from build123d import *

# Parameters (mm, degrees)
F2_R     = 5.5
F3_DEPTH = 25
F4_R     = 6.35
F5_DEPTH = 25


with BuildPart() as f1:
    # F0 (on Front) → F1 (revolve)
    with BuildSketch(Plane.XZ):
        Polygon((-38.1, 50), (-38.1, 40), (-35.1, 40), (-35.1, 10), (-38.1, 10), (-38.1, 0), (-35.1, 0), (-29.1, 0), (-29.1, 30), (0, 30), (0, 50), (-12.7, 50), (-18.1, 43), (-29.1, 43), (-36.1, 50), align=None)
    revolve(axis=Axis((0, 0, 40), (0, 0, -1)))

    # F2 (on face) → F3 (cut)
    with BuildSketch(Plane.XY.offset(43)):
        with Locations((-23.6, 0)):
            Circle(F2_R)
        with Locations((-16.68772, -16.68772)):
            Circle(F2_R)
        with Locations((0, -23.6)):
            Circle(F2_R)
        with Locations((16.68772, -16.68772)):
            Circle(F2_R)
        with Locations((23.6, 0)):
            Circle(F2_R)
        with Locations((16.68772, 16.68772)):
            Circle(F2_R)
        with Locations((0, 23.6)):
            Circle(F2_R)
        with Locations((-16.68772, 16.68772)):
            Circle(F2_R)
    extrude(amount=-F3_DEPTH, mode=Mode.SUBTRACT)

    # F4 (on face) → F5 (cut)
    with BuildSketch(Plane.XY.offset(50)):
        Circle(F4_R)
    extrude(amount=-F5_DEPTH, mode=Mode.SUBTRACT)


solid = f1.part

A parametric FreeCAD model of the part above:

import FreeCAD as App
import Part
import Sketcher
Q = App.Units.Quantity

doc = App.newDocument("Part")
body = doc.addObject("PartDesign::Body", "Body")

# Sketch on XZ plane
sketch1 = doc.addObject("Sketcher::SketchObject", "Sketch")
body.addObject(sketch1)
sketch1.AttachmentSupport = (doc.XZ_Plane, [""])
sketch1.MapMode = "FlatFace"
sketch1.addGeometry([
    Part.LineSegment(App.Vector(-38.1, 50, 0), App.Vector(-38.1, 40, 0)),  # 0
    Part.LineSegment(App.Vector(-38.1, 40, 0), App.Vector(-35.1, 40, 0)),  # 1
    Part.LineSegment(App.Vector(-35.1, 40, 0), App.Vector(-35.1, 10, 0)),  # 2
    Part.LineSegment(App.Vector(-35.1, 10, 0), App.Vector(-38.1, 10, 0)),  # 3
    Part.LineSegment(App.Vector(-38.1, 10, 0), App.Vector(-38.1, 0, 0)),  # 4
    Part.LineSegment(App.Vector(-38.1, 0, 0), App.Vector(-29.1, 0, 0)),  # 5
    Part.LineSegment(App.Vector(-29.1, 0, 0), App.Vector(-29.1, 30, 0)),  # 6
    Part.LineSegment(App.Vector(-29.1, 30, 0), App.Vector(0, 30, 0)),  # 7
    Part.LineSegment(App.Vector(0, 30, 0), App.Vector(0, 50, 0)),  # 8
    Part.LineSegment(App.Vector(0, 50, 0), App.Vector(-12.7, 50, 0)),  # 9
    Part.LineSegment(App.Vector(-12.7, 50, 0), App.Vector(-18.1, 43, 0)),  # 10
    Part.LineSegment(App.Vector(-18.1, 43, 0), App.Vector(-29.1, 43, 0)),  # 11
    Part.LineSegment(App.Vector(-29.1, 43, 0), App.Vector(-36.1, 50, 0)),  # 12
    Part.LineSegment(App.Vector(-36.1, 50, 0), App.Vector(-38.1, 50, 0)),  # 13
], False)
sketch1.addConstraint([
    Sketcher.Constraint("Coincident", 0, 2, 1, 1),
    Sketcher.Constraint("Coincident", 1, 2, 2, 1),
    Sketcher.Constraint("Coincident", 2, 2, 3, 1),
    Sketcher.Constraint("Coincident", 3, 2, 4, 1),
    Sketcher.Constraint("Coincident", 4, 2, 5, 1),
    Sketcher.Constraint("Coincident", 5, 2, 6, 1),
    Sketcher.Constraint("Coincident", 6, 2, 7, 1),
    Sketcher.Constraint("Coincident", 7, 2, 8, 1),
    Sketcher.Constraint("Coincident", 8, 2, 9, 1),
    Sketcher.Constraint("Coincident", 9, 2, 10, 1),
    Sketcher.Constraint("Coincident", 10, 2, 11, 1),
    Sketcher.Constraint("Coincident", 11, 2, 12, 1),
    Sketcher.Constraint("Coincident", 12, 2, 13, 1),
    Sketcher.Constraint("Coincident", 13, 2, 0, 1),
    Sketcher.Constraint("Vertical", 0),
    Sketcher.Constraint("Horizontal", 1),
    Sketcher.Constraint("Vertical", 2),
    Sketcher.Constraint("Horizontal", 3),
    Sketcher.Constraint("Vertical", 4),
    Sketcher.Constraint("Horizontal", 5),
    Sketcher.Constraint("Vertical", 6),
    Sketcher.Constraint("Horizontal", 7),
    Sketcher.Constraint("Vertical", 8),
    Sketcher.Constraint("Horizontal", 9),
    Sketcher.Constraint("Horizontal", 11),
    Sketcher.Constraint("Horizontal", 13),
    Sketcher.Constraint("PointOnObject", 4, 2, -1),
    Sketcher.Constraint("PointOnObject", 7, 2, -2),
    Sketcher.Constraint("Horizontal", 9, 2, 12, 2),
    Sketcher.Constraint("Vertical", 0, 2, 3, 2),
    Sketcher.Constraint("Vertical", 6, 2, 11, 2),
    Sketcher.Constraint("Equal", 0, 4),
    Sketcher.Constraint("Equal", 2, 6),
    Sketcher.Constraint("DistanceX", 1, 1, 1, 2, Q("3 mm")),
    Sketcher.Constraint("DistanceX", 5, 1, 5, 2, Q("9 mm")),
    Sketcher.Constraint("DistanceX", 11, 2, 11, 1, Q("11 mm")),
    Sketcher.Constraint("DistanceX", 13, 2, 13, 1, Q("2 mm")),
    Sketcher.Constraint("DistanceY", 0, 2, 0, 1, Q("10 mm")),
    Sketcher.Constraint("DistanceY", 2, 2, 2, 1, Q("30 mm")),
    Sketcher.Constraint("Angle", 12, Q("135 deg")),
    Sketcher.Constraint("DistanceX", 7, 1, 7, 2, Q("29.1 mm")),
    Sketcher.Constraint("DistanceX", 9, 2, 9, 1, Q("12.7 mm")),
])
revolution = doc.addObject("PartDesign::Revolution", "Revolution")
body.addObject(revolution)
revolution.Profile = sketch1
revolution.ReferenceAxis = (sketch1, ["V_Axis"])
revolution.Angle = 360

# Sketch on XY plane
sketch2 = doc.addObject("Sketcher::SketchObject", "Sketch001")
body.addObject(sketch2)
sketch2.AttachmentSupport = (doc.XY_Plane, [""])
sketch2.MapMode = "FlatFace"
sketch2.AttachmentOffset = App.Placement(App.Vector(0, 0, 43), App.Rotation())
sketch2.addGeometry([
    Part.Circle(App.Vector(-24, 0, 0), App.Vector(0, 0, 1), 6),  # 0
    Part.Circle(App.Vector(-17, -17, 0), App.Vector(0, 0, 1), 6),  # 1
    Part.Circle(App.Vector(0, -24, 0), App.Vector(0, 0, 1), 6),  # 2
    Part.Circle(App.Vector(17, -17, 0), App.Vector(0, 0, 1), 6),  # 3
    Part.Circle(App.Vector(24, 0, 0), App.Vector(0, 0, 1), 6),  # 4
    Part.Circle(App.Vector(17, 17, 0), App.Vector(0, 0, 1), 6),  # 5
    Part.Circle(App.Vector(0, 24, 0), App.Vector(0, 0, 1), 6),  # 6
    Part.Circle(App.Vector(-17, 17, 0), App.Vector(0, 0, 1), 6),  # 7
], False)
sketch2.addConstraint([
    Sketcher.Constraint("Equal", 0, 1),
    Sketcher.Constraint("Equal", 1, 2),
    Sketcher.Constraint("Equal", 2, 3),
    Sketcher.Constraint("Equal", 3, 4),
    Sketcher.Constraint("Equal", 4, 5),
    Sketcher.Constraint("Equal", 5, 6),
    Sketcher.Constraint("Equal", 6, 7),
    Sketcher.Constraint("Symmetric", 0, 3, 4, 3, -1, 1),
    Sketcher.Constraint("Symmetric", 1, 3, 5, 3, -1, 1),
    Sketcher.Constraint("Symmetric", 2, 3, 6, 3, -1, 1),
    Sketcher.Constraint("Symmetric", 3, 3, 7, 3, -1, 1),
    Sketcher.Constraint("Symmetric", 1, 3, 3, 3, -2),
    Sketcher.Constraint("PointOnObject", 0, 3, -1),
    Sketcher.Constraint("PointOnObject", 2, 3, -2),
    Sketcher.Constraint("Diameter", 0, Q("11 mm")),
    Sketcher.Constraint("DistanceX", 0, 3, -1, 1, Q("23.6 mm")),
    Sketcher.Constraint("DistanceY", 2, 3, -1, 1, Q("23.6 mm")),
    Sketcher.Constraint("DistanceX", 1, 3, -1, 1, Q("16.68772 mm")),
    Sketcher.Constraint("DistanceY", 1, 3, -1, 1, Q("16.68772 mm")),
])
pocket1 = doc.addObject("PartDesign::Pocket", "Pocket")
body.addObject(pocket1)
pocket1.Profile = sketch2
pocket1.Length = 25

# Sketch on XY plane
sketch3 = doc.addObject("Sketcher::SketchObject", "Sketch002")
body.addObject(sketch3)
sketch3.AttachmentSupport = (doc.XY_Plane, [""])
sketch3.MapMode = "FlatFace"
sketch3.AttachmentOffset = App.Placement(App.Vector(0, 0, 50), App.Rotation())
sketch3.addGeometry(Part.Circle(App.Vector(0, 0, 0), App.Vector(0, 0, 1), 6), False)
sketch3.addConstraint([
    Sketcher.Constraint("Coincident", 0, 3, -1, 1),
    Sketcher.Constraint("Diameter", 0, Q("12.7 mm")),
])
pocket2 = doc.addObject("PartDesign::Pocket", "Pocket001")
body.addObject(pocket2)
pocket2.Profile = sketch3
pocket2.Length = 25

doc.recompute()
